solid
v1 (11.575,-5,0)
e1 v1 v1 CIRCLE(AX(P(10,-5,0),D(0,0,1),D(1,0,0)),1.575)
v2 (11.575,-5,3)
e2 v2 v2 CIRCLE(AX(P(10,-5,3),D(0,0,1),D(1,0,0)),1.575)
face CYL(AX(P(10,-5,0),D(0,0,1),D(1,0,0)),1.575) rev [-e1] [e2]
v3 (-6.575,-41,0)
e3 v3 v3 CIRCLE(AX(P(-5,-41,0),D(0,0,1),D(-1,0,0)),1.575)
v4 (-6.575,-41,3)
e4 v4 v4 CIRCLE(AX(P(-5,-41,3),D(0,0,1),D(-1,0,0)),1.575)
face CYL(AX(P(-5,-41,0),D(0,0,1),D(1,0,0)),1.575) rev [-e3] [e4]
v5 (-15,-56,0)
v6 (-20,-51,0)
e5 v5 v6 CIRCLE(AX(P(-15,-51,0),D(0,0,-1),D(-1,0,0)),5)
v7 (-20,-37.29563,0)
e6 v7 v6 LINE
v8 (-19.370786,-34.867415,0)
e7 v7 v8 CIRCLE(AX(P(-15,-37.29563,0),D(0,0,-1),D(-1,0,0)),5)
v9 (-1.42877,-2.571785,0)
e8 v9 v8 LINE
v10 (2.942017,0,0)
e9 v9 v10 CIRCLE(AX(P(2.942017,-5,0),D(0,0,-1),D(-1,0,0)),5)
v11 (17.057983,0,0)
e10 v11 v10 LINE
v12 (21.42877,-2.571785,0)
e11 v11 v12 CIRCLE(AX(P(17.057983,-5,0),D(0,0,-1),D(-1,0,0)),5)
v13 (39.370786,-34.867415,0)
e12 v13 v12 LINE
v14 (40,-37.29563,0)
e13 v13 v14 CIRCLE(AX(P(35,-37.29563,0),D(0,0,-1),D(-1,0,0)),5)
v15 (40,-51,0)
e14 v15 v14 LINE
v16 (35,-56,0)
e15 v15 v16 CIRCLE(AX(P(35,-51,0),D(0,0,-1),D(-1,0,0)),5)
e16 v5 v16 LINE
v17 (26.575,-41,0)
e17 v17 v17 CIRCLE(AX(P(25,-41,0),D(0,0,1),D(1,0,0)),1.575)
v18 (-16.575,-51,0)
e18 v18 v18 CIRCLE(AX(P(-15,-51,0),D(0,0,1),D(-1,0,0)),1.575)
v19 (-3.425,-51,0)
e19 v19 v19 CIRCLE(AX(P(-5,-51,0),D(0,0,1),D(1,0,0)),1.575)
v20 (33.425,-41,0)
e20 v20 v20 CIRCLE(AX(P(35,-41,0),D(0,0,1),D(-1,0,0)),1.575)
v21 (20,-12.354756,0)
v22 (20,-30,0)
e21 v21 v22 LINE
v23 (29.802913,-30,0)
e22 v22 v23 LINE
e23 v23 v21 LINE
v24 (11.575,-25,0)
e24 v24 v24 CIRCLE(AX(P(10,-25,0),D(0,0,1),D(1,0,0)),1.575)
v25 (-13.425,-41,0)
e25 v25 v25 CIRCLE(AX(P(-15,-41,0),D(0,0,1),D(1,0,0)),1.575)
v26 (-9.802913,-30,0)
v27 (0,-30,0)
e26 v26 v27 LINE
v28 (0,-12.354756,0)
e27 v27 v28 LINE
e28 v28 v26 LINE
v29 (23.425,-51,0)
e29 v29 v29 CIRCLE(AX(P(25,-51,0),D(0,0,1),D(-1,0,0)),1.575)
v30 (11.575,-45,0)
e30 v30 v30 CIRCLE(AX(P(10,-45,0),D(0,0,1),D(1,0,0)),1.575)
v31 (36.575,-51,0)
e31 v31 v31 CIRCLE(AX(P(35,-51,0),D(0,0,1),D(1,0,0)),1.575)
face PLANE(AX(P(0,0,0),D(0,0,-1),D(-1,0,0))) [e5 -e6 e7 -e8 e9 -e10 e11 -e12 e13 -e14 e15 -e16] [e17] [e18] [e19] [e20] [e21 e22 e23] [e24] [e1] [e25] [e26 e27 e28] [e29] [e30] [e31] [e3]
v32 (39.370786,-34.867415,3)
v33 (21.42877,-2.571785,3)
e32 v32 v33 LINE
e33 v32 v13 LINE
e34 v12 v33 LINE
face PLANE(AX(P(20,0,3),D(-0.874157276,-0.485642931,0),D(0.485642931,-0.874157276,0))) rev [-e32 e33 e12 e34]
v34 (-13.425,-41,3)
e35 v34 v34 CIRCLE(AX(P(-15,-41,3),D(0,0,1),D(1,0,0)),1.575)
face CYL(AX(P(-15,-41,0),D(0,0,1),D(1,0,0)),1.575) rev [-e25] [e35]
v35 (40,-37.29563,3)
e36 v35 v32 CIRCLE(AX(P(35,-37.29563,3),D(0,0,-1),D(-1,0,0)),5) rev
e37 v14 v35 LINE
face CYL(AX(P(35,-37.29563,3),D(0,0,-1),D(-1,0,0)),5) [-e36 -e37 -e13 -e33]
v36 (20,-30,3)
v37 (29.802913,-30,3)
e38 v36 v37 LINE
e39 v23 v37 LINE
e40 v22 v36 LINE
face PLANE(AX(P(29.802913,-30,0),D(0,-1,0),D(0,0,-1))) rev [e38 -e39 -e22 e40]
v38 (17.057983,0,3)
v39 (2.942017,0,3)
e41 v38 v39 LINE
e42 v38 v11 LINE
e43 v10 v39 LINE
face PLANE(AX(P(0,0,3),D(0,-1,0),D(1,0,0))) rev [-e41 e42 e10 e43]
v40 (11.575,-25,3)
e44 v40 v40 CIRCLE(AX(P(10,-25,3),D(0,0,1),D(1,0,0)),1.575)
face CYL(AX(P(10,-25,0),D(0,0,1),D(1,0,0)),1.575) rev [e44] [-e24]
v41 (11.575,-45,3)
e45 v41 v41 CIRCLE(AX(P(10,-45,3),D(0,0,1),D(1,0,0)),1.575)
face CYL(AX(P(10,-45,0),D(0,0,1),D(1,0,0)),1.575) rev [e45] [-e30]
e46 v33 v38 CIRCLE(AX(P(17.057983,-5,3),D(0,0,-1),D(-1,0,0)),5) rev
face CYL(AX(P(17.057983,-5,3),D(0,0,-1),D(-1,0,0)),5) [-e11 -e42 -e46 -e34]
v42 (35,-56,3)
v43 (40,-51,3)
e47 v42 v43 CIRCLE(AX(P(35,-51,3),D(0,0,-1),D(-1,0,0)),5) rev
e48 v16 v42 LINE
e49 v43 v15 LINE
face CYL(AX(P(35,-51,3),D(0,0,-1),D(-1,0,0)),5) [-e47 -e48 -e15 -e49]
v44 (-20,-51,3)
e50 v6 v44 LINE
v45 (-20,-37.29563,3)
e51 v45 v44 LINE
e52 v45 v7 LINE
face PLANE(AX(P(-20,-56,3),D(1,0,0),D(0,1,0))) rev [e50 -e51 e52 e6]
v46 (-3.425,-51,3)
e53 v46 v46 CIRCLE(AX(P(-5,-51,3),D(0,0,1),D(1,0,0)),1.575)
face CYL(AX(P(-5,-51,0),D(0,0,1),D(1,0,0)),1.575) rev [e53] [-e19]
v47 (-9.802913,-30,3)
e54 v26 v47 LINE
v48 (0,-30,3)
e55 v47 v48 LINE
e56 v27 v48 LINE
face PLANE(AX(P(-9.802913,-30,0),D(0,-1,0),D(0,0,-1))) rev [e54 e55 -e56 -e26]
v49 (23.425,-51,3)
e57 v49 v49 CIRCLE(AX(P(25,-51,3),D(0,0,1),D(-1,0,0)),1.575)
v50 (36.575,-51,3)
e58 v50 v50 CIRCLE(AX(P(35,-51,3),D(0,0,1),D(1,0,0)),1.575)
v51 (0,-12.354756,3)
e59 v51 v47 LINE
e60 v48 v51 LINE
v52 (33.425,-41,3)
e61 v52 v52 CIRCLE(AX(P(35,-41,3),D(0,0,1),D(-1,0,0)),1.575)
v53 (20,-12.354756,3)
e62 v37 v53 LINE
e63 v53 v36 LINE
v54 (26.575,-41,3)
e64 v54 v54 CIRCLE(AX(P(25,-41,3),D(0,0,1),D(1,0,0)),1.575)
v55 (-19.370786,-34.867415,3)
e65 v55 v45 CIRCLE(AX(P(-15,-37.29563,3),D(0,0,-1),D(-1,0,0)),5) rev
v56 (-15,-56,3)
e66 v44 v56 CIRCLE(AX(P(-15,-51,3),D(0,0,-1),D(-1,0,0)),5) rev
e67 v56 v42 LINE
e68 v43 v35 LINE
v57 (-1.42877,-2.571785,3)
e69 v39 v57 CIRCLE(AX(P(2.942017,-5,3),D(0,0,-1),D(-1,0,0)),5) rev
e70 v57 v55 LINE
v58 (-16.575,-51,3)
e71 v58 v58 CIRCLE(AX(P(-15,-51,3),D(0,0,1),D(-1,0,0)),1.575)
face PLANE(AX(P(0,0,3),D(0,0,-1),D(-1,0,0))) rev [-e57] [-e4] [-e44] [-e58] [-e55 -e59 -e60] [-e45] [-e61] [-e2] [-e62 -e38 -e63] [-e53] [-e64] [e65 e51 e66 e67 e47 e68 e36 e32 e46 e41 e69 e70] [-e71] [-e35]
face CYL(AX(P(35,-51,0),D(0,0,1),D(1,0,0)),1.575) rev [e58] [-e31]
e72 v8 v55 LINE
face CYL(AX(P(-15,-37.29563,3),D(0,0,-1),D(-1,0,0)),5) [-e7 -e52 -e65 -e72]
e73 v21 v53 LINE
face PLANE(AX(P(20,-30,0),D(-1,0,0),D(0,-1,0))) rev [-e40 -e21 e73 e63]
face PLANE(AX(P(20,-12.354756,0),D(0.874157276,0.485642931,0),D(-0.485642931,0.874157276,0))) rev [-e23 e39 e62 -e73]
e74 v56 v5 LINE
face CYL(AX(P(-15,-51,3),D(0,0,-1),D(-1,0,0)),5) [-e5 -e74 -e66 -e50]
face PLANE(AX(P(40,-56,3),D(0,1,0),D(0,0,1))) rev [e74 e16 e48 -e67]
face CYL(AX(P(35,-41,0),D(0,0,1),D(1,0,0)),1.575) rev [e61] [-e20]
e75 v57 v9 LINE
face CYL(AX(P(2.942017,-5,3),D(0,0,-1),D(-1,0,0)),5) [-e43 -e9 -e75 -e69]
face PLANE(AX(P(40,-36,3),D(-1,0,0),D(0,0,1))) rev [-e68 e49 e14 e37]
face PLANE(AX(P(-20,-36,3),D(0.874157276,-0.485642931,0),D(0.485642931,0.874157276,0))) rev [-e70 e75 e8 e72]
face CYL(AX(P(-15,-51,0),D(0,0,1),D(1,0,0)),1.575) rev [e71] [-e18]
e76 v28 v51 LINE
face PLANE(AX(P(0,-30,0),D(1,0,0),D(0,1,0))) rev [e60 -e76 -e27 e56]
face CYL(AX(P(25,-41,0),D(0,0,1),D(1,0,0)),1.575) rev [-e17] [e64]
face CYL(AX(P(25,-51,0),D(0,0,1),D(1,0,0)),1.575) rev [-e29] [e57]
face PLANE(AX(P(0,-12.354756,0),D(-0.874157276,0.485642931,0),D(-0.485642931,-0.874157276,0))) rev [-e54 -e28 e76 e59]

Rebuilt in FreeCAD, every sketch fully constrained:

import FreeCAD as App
import Part
import Sketcher

V = App.Vector
Q = App.Units.Quantity


def edges_at(feature, points):
    """Names of the edges that pass closest to the given points."""
    edges = feature.Shape.Edges
    near = lambda p: min(range(len(edges)), key=lambda i: edges[i].distToShape(Part.Vertex(*p))[0])
    return sorted({f"Edge{near(p) + 1}" for p in points})

doc = App.newDocument("Part")
params = doc.addObject("Spreadsheet::Sheet", "Params")
for row, (alias, value) in enumerate([
    ("sketch1_width", "20 mm"),
    ("sketch1_width2", "60 mm"),
    ("pad1_length", "3 mm"),
    ("sketch2_diameter", "3.15 mm"),
    ("fillet_radius", "5 mm"),
], start=1):
    params.set(f"A{row}", alias)
    params.set(f"B{row}", "=" + value)
    params.setAlias(f"B{row}", alias)

body = doc.addObject("PartDesign::Body", "Body")

# Sketch on XY plane
sketch1 = body.newObject("Sketcher::SketchObject", "Sketch")
sketch1.AttachmentSupport = (doc.getObject("XY_Plane"), [""])
sketch1.MapMode = "FlatFace"
sketch1.addGeometry([
    Part.LineSegment(V(20, 0, 0), V(0, 0, 0)),  # 0
    Part.LineSegment(V(0, 0, 0), V(-20, -36, 0)),  # 1
    Part.LineSegment(V(-20, -36, 0), V(-20, -56, 0)),  # 2
    Part.LineSegment(V(-20, -56, 0), V(40, -56, 0)),  # 3
    Part.LineSegment(V(40, -56, 0), V(40, -36, 0)),  # 4
    Part.LineSegment(V(40, -36, 0), V(20, 0, 0)),  # 5
], False)
sketch1.addConstraint([
    Sketcher.Constraint("Coincident", 0, 2, 1, 1),
    Sketcher.Constraint("Coincident", 1, 2, 2, 1),
    Sketcher.Constraint("Coincident", 2, 2, 3, 1),
    Sketcher.Constraint("Coincident", 3, 2, 4, 1),
    Sketcher.Constraint("Coincident", 4, 2, 5, 1),
    Sketcher.Constraint("Coincident", 5, 2, 0, 1),
    Sketcher.Constraint("Horizontal", 0),
    Sketcher.Constraint("Vertical", 2),
    Sketcher.Constraint("Horizontal", 3),
    Sketcher.Constraint("Vertical", 4),
    Sketcher.Constraint("Coincident", 0, 2, -1, 1),
    Sketcher.Constraint("Horizontal", 1, 2, 4, 2),
    Sketcher.Constraint("Equal", 0, 2),
    Sketcher.Constraint("Equal", 1, 5),
    Sketcher.Constraint("DistanceX", 0, 2, 0, 1, Q("20 mm")),
    Sketcher.Constraint("DistanceX", 3, 1, 3, 2, Q("60 mm")),
    Sketcher.Constraint("DistanceY", 1, 2, -1, 1, Q("36 mm")),
])
sketch1.setExpression("Constraints[14]", "Params.sketch1_width")
sketch1.setExpression("Constraints[15]", "Params.sketch1_width2")
pad1 = body.newObject("PartDesign::Pad", "Pad")
pad1.Profile = sketch1
pad1.setExpression("Length", "Params.pad1_length")

# Sketch on XY plane
sketch2 = body.newObject("Sketcher::SketchObject", "Sketch001")
sketch2.AttachmentSupport = (doc.getObject("XY_Plane"), [""])
sketch2.MapMode = "FlatFace"
sketch2.AttachmentOffset = App.Placement(V(0, 0, 3), App.Rotation())
sketch2.addGeometry([
    Part.Circle(V(-15, -41, 0), V(0, 0, 1), 1.6),  # 0
    Part.Circle(V(-5, -41, 0), V(0, 0, 1), 1.6),  # 1
    Part.Circle(V(-5, -51, 0), V(0, 0, 1), 1.6),  # 2
    Part.Circle(V(-15, -51, 0), V(0, 0, 1), 1.6),  # 3
    Part.Circle(V(35, -51, 0), V(0, 0, 1), 1.6),  # 4
    Part.Circle(V(25, -51, 0), V(0, 0, 1), 1.6),  # 5
    Part.Circle(V(25, -41, 0), V(0, 0, 1), 1.6),  # 6
    Part.Circle(V(35, -41, 0), V(0, 0, 1), 1.6),  # 7
    Part.Circle(V(10, -25, 0), V(0, 0, 1), 1.6),  # 8
    Part.Circle(V(10, -5, 0), V(0, 0, 1), 1.6),  # 9
    Part.Circle(V(10, -45, 0), V(0, 0, 1), 1.6),  # 10
    Part.LineSegment(V(0, -12.4, 0), V(-9.8, -30, 0)),  # 11
    Part.LineSegment(V(-9.8, -30, 0), V(0, -30, 0)),  # 12
    Part.LineSegment(V(0, -30, 0), V(0, -12.4, 0)),  # 13
    Part.LineSegment(V(20, -30, 0), V(29.8, -30, 0)),  # 14
    Part.LineSegment(V(29.8, -30, 0), V(20, -12.4, 0)),  # 15
    Part.LineSegment(V(20, -12.4, 0), V(20, -30, 0)),  # 16
], False)
sketch2.addConstraint([
    Sketcher.Constraint("Coincident", 11, 2, 12, 1),
    Sketcher.Constraint("Coincident", 12, 2, 13, 1),
    Sketcher.Constraint("Coincident", 13, 2, 11, 1),
    Sketcher.Constraint("Coincident", 14, 2, 15, 1),
    Sketcher.Constraint("Coincident", 15, 2, 16, 1),
    Sketcher.Constraint("Coincident", 16, 2, 14, 1),
    Sketcher.Constraint("Horizontal", 12),
    Sketcher.Constraint("Vertical", 13),
    Sketcher.Constraint("Horizontal", 14),
    Sketcher.Constraint("Vertical", 16),
    Sketcher.Constraint("Equal", 0, 1),
    Sketcher.Constraint("Equal", 1, 2),
    Sketcher.Constraint("Equal", 2, 3),
    Sketcher.Constraint("Equal", 3, 4),
    Sketcher.Constraint("Equal", 4, 5),
    Sketcher.Constraint("Equal", 5, 6),
    Sketcher.Constraint("Equal", 6, 7),
    Sketcher.Constraint("Equal", 7, 8),
    Sketcher.Constraint("Equal", 8, 9),
    Sketcher.Constraint("Equal", 9, 10),
    Sketcher.Constraint("PointOnObject", 12, 2, -2),
    Sketcher.Constraint("Horizontal", 0, 3, 1, 3),
    Sketcher.Constraint("Horizontal", 2, 3, 3, 3),
    Sketcher.Constraint("Horizontal", 3, 3, 4, 3),
    Sketcher.Constraint("Horizontal", 4, 3, 5, 3),
    Sketcher.Constraint("Horizontal", 1, 3, 6, 3),
    Sketcher.Constraint("Horizontal", 6, 3, 7, 3),
    Sketcher.Constraint("Horizontal", 12, 2, 14, 2),
    Sketcher.Constraint("Horizontal", 13, 2, 15, 2),
    Sketcher.Constraint("Vertical", 1, 3, 2, 3),
    Sketcher.Constraint("Vertical", 0, 3, 3, 3),
    Sketcher.Constraint("Vertical", 5, 3, 6, 3),
    Sketcher.Constraint("Vertical", 4, 3, 7, 3),
    Sketcher.Constraint("Vertical", 8, 3, 9, 3),
    Sketcher.Constraint("Vertical", 9, 3, 10, 3),
    Sketcher.Constraint("Equal", 12, 14),
    Sketcher.Constraint("Diameter", 0, Q("3.15 mm")),
    Sketcher.Constraint("DistanceX", 0, 3, -1, 1, Q("15 mm")),
    Sketcher.Constraint("DistanceY", 0, 3, -1, 1, Q("41 mm")),
    Sketcher.Constraint("DistanceX", 1, 3, -1, 1, Q("5 mm")),
    Sketcher.Constraint("DistanceY", 2, 3, -1, 1, Q("51 mm")),
    Sketcher.Constraint("DistanceX", -1, 1, 4, 3, Q("35 mm")),
    Sketcher.Constraint("DistanceX", -1, 1, 5, 3, Q("25 mm")),
    Sketcher.Constraint("DistanceX", -1, 1, 8, 3, Q("10 mm")),
    Sketcher.Constraint("DistanceY", 8, 3, -1, 1, Q("25 mm")),
    Sketcher.Constraint("DistanceY", 9, 3, -1, 1, Q("5 mm")),
    Sketcher.Constraint("DistanceY", 10, 3, -1, 1, Q("45 mm")),
    Sketcher.Constraint("DistanceY", 11, 2, -1, 1, Q("30 mm")),
    Sketcher.Constraint("DistanceX", -1, 1, 15, 2, Q("20 mm")),
    Sketcher.Constraint("DistanceX", 12, 1, 12, 2, Q("9.802913 mm")),
    Sketcher.Constraint("DistanceY", 13, 1, 13, 2, Q("17.645244 mm")),
])
sketch2.setExpression("Constraints[36]", "Params.sketch2_diameter")
pocket1 = body.newObject("PartDesign::Pocket", "Pocket")
pocket1.Profile = sketch2
pocket1.Type = "ThroughAll"
doc.recompute()

fillet = body.newObject("PartDesign::Fillet", "Fillet")
fillet.Base = (pocket1, edges_at(pocket1, [
    (0, 0, 1.5),
    (20, 0, 1.5),
    (40, -36, 1.5),
    (40, -56, 1.5),
    (-20, -56, 1.5),
    (-20, -36, 1.5),
]))
fillet.setExpression("Radius", "Params.fillet_radius")

doc.recompute()
